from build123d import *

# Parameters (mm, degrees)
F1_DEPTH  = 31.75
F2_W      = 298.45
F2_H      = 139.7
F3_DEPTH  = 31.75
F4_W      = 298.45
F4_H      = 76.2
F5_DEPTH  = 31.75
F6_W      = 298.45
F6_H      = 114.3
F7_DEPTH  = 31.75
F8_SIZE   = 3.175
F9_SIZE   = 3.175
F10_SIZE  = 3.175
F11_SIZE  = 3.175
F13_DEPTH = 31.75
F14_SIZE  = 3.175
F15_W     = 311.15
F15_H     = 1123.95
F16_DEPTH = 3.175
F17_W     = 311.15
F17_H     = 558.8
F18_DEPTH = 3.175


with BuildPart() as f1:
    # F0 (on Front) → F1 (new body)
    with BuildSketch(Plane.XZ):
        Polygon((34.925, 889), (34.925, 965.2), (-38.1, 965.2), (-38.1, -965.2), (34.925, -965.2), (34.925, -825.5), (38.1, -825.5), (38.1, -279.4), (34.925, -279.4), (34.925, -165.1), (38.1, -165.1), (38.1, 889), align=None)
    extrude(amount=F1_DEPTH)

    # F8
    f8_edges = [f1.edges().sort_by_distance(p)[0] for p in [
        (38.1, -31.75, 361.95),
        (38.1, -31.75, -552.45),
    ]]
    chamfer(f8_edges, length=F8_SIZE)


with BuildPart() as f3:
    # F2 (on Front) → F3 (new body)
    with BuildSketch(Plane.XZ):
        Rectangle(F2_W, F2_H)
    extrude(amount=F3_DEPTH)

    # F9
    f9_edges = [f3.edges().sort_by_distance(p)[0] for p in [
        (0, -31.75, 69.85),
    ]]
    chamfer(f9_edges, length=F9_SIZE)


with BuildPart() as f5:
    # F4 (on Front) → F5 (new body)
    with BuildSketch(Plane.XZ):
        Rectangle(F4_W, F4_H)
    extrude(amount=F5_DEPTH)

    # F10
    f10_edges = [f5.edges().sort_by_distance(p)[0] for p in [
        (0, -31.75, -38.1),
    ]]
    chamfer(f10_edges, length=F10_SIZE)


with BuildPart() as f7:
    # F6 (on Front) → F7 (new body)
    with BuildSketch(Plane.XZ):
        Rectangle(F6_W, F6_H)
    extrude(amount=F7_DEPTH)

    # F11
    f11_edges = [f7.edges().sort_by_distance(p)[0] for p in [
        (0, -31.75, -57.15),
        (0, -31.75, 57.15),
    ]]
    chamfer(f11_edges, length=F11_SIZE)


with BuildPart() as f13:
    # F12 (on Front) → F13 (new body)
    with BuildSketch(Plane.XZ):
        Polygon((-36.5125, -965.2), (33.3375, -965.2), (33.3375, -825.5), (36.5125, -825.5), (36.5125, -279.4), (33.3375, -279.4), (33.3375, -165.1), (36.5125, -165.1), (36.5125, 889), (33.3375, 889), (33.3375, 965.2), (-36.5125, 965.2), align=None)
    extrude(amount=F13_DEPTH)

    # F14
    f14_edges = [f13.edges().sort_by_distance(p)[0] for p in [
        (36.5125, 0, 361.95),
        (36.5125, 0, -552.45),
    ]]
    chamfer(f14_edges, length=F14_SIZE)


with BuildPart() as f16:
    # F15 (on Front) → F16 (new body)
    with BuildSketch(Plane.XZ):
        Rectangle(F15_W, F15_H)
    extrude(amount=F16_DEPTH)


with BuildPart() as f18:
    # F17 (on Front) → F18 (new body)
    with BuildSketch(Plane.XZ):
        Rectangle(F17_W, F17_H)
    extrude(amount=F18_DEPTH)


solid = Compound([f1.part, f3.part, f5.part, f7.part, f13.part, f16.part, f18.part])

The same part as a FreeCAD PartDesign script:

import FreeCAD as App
import Part
import Sketcher
from FreeCAD import Vector
Q = App.Units.Quantity


def edges_at(feature, points):
    """Names of the edges that pass closest to the given points."""
    edges = feature.Shape.Edges
    near = lambda p: min(range(len(edges)), key=lambda i: edges[i].distToShape(Part.Vertex(*p))[0])
    return sorted({f"Edge{near(p) + 1}" for p in points})

doc = App.newDocument("Part")
body = doc.addObject("PartDesign::Body", "Body")

sketch1 = body.newObject("Sketcher::SketchObject", "Sketch")
sketch1.AttachmentSupport = (doc.getObject("XZ_Plane"), [""])
sketch1.MapMode = "FlatFace"
sketch1.addGeometry([
    Part.LineSegment(Vector(34.9, 889, 0), Vector(34.9, 965.2, 0)),
    Part.LineSegment(Vector(34.9, 965.2, 0), Vector(-38.1, 965.2, 0)),
    Part.LineSegment(Vector(-38.1, 965.2, 0), Vector(-38.1, -965.2, 0)),
    Part.LineSegment(Vector(-38.1, -965.2, 0), Vector(34.9, -965.2, 0)),
    Part.LineSegment(Vector(34.9, -965.2, 0), Vector(34.9, -825.5, 0)),
    Part.LineSegment(Vector(34.9, -825.5, 0), Vector(38.1, -825.5, 0)),
    Part.LineSegment(Vector(38.1, -825.5, 0), Vector(38.1, -279.4, 0)),
    Part.LineSegment(Vector(38.1, -279.4, 0), Vector(34.9, -279.4, 0)),
    Part.LineSegment(Vector(34.9, -279.4, 0), Vector(34.9, -165.1, 0)),
    Part.LineSegment(Vector(34.9, -165.1, 0), Vector(38.1, -165.1, 0)),
    Part.LineSegment(Vector(38.1, -165.1, 0), Vector(38.1, 889, 0)),
    Part.LineSegment(Vector(38.1, 889, 0), Vector(34.9, 889, 0)),
], False)
sketch1.addConstraint([
    Sketcher.Constraint("Coincident", 0, 2, 1, 1),
    Sketcher.Constraint("Coincident", 1, 2, 2, 1),
    Sketcher.Constraint("Coincident", 2, 2, 3, 1),
    Sketcher.Constraint("Coincident", 3, 2, 4, 1),
    Sketcher.Constraint("Coincident", 4, 2, 5, 1),
    Sketcher.Constraint("Coincident", 5, 2, 6, 1),
    Sketcher.Constraint("Coincident", 6, 2, 7, 1),
    Sketcher.Constraint("Coincident", 7, 2, 8, 1),
    Sketcher.Constraint("Coincident", 8, 2, 9, 1),
    Sketcher.Constraint("Coincident", 9, 2, 10, 1),
    Sketcher.Constraint("Coincident", 10, 2, 11, 1),
    Sketcher.Constraint("Coincident", 11, 2, 0, 1),
    Sketcher.Constraint("Vertical", 0),
    Sketcher.Constraint("Horizontal", 1),
    Sketcher.Constraint("Vertical", 2),
    Sketcher.Constraint("Horizontal", 3),
    Sketcher.Constraint("Vertical", 4),
    Sketcher.Constraint("Horizontal", 5),
    Sketcher.Constraint("Vertical", 6),
    Sketcher.Constraint("Horizontal", 7),
    Sketcher.Constraint("Vertical", 8),
    Sketcher.Constraint("Horizontal", 9),
    Sketcher.Constraint("Vertical", 10),
    Sketcher.Constraint("Horizontal", 11),
    Sketcher.Constraint("Symmetric", 0, 2, 3, 2, -1),
    Sketcher.Constraint("Vertical", 4, 2, 7, 2),
    Sketcher.Constraint("Vertical", 6, 2, 9, 2),
    Sketcher.Constraint("DistanceY", 0, 1, 0, 2, Q("3 in")),
    Sketcher.Constraint("DistanceY", 2, 2, 2, 1, Q("76 in")),
    Sketcher.Constraint("DistanceY", 4, 1, 4, 2, Q("5.5 in")),
    Sketcher.Constraint("DistanceY", 6, 1, 6, 2, Q("21.5 in")),
    Sketcher.Constraint("DistanceY", 8, 1, 8, 2, Q("4.5 in")),
    Sketcher.Constraint("DistanceX", 2, 2, 5, 2, Q("3 in")),
    Sketcher.Constraint("DistanceX", 1, 2, -1, 1, Q("1.5 in")),
    Sketcher.Constraint("DistanceX", 1, 2, 1, 1, Q("2.875 in")),
])
pad1 = body.newObject("PartDesign::Pad", "Pad")
pad1.Profile = sketch1
pad1.Length = Q("1.25 in")
doc.recompute()

chamfer = body.newObject("PartDesign::Chamfer", "Chamfer")
chamfer.Base = (pad1, edges_at(pad1, [(38.1, -31.75, 361.95), (38.1, -31.75, -552.45)]))
chamfer.Size = Q("0.125 in")
body2 = doc.addObject("PartDesign::Body", "Body001")

sketch2 = body2.newObject("Sketcher::SketchObject", "Sketch001")
sketch2.AttachmentSupport = (doc.getObject("XZ_Plane001"), [""])
sketch2.MapMode = "FlatFace"
sketch2.addGeometry([
    Part.LineSegment(Vector(-149, 70, 0), Vector(-149, -70, 0)),
    Part.LineSegment(Vector(-149, -70, 0), Vector(149, -70, 0)),
    Part.LineSegment(Vector(149, -70, 0), Vector(149, 70, 0)),
    Part.LineSegment(Vector(149, 70, 0), Vector(-149, 70, 0)),
], False)
sketch2.addConstraint([
    Sketcher.Constraint("Coincident", 0, 2, 1, 1),
    Sketcher.Constraint("Coincident", 1, 2, 2, 1),
    Sketcher.Constraint("Coincident", 2, 2, 3, 1),
    Sketcher.Constraint("Coincident", 3, 2, 0, 1),
    Sketcher.Constraint("Vertical", 0),
    Sketcher.Constraint("Horizontal", 1),
    Sketcher.Constraint("Vertical", 2),
    Sketcher.Constraint("Horizontal", 3),
    Sketcher.Constraint("Symmetric", 0, 2, 2, 2, -1, 1),
    Sketcher.Constraint("DistanceY", 0, 2, 0, 1, Q("5.5 in")),
    Sketcher.Constraint("DistanceX", 1, 1, 1, 2, Q("11.75 in")),
])
pad2 = body2.newObject("PartDesign::Pad", "Pad001")
pad2.Profile = sketch2
pad2.Length = Q("1.25 in")
doc.recompute()

chamfer2 = body2.newObject("PartDesign::Chamfer", "Chamfer001")
chamfer2.Base = (pad2, edges_at(pad2, [(0, -31.75, 69.85)]))
chamfer2.Size = Q("0.125 in")
body3 = doc.addObject("PartDesign::Body", "Body002")

sketch3 = body3.newObject("Sketcher::SketchObject", "Sketch002")
sketch3.AttachmentSupport = (doc.getObject("XZ_Plane002"), [""])
sketch3.MapMode = "FlatFace"
sketch3.addGeometry([
    Part.LineSegment(Vector(-149, 38, 0), Vector(-149, -38, 0)),
    Part.LineSegment(Vector(-149, -38, 0), Vector(149, -38, 0)),
    Part.LineSegment(Vector(149, -38, 0), Vector(149, 38, 0)),
    Part.LineSegment(Vector(149, 38, 0), Vector(-149, 38, 0)),
], False)
sketch3.addConstraint([
    Sketcher.Constraint("Coincident", 0, 2, 1, 1),
    Sketcher.Constraint("Coincident", 1, 2, 2, 1),
    Sketcher.Constraint("Coincident", 2, 2, 3, 1),
    Sketcher.Constraint("Coincident", 3, 2, 0, 1),
    Sketcher.Constraint("Vertical", 0),
    Sketcher.Constraint("Horizontal", 1),
    Sketcher.Constraint("Vertical", 2),
    Sketcher.Constraint("Horizontal", 3),
    Sketcher.Constraint("Symmetric", 0, 2, 2, 2, -1, 1),
    Sketcher.Constraint("DistanceY", 0, 2, 0, 1, Q("3 in")),
    Sketcher.Constraint("DistanceX", 1, 1, 1, 2, Q("11.75 in")),
])
pad3 = body3.newObject("PartDesign::Pad", "Pad002")
pad3.Profile = sketch3
pad3.Length = Q("1.25 in")
doc.recompute()

chamfer3 = body3.newObject("PartDesign::Chamfer", "Chamfer002")
chamfer3.Base = (pad3, edges_at(pad3, [(0, -31.75, -38.1)]))
chamfer3.Size = Q("0.125 in")
body4 = doc.addObject("PartDesign::Body", "Body003")

sketch4 = body4.newObject("Sketcher::SketchObject", "Sketch003")
sketch4.AttachmentSupport = (doc.getObject("XZ_Plane003"), [""])
sketch4.MapMode = "FlatFace"
sketch4.addGeometry([
    Part.LineSegment(Vector(-149, 57, 0), Vector(-149, -57, 0)),
    Part.LineSegment(Vector(-149, -57, 0), Vector(149, -57, 0)),
    Part.LineSegment(Vector(149, -57, 0), Vector(149, 57, 0)),
    Part.LineSegment(Vector(149, 57, 0), Vector(-149, 57, 0)),
], False)
sketch4.addConstraint([
    Sketcher.Constraint("Coincident", 0, 2, 1, 1),
    Sketcher.Constraint("Coincident", 1, 2, 2, 1),
    Sketcher.Constraint("Coincident", 2, 2, 3, 1),
    Sketcher.Constraint("Coincident", 3, 2, 0, 1),
    Sketcher.Constraint("Vertical", 0),
    Sketcher.Constraint("Horizontal", 1),
    Sketcher.Constraint("Vertical", 2),
    Sketcher.Constraint("Horizontal", 3),
    Sketcher.Constraint("Symmetric", 0, 2, 2, 2, -1, 1),
    Sketcher.Constraint("DistanceY", 0, 2, 0, 1, Q("4.5 in")),
    Sketcher.Constraint("DistanceX", 1, 1, 1, 2, Q("11.75 in")),
])
pad4 = body4.newObject("PartDesign::Pad", "Pad003")
pad4.Profile = sketch4
pad4.Length = Q("1.25 in")
doc.recompute()

chamfer4 = body4.newObject("PartDesign::Chamfer", "Chamfer003")
chamfer4.Base = (pad4, edges_at(pad4, [(0, -31.75, -57.15), (0, -31.75, 57.15)]))
chamfer4.Size = Q("0.125 in")
body5 = doc.addObject("PartDesign::Body", "Body004")

sketch5 = body5.newObject("Sketcher::SketchObject", "Sketch004")
sketch5.AttachmentSupport = (doc.getObject("XZ_Plane004"), [""])
sketch5.MapMode = "FlatFace"
sketch5.addGeometry([
    Part.LineSegment(Vector(-36.5, -965.2, 0), Vector(33.3, -965.2, 0)),
    Part.LineSegment(Vector(33.3, -965.2, 0), Vector(33.3, -825.5, 0)),
    Part.LineSegment(Vector(33.3, -825.5, 0), Vector(36.5, -825.5, 0)),
    Part.LineSegment(Vector(36.5, -825.5, 0), Vector(36.5, -279.4, 0)),
    Part.LineSegment(Vector(36.5, -279.4, 0), Vector(33.3, -279.4, 0)),
    Part.LineSegment(Vector(33.3, -279.4, 0), Vector(33.3, -165.1, 0)),
    Part.LineSegment(Vector(33.3, -165.1, 0), Vector(36.5, -165.1, 0)),
    Part.LineSegment(Vector(36.5, -165.1, 0), Vector(36.5, 889, 0)),
    Part.LineSegment(Vector(36.5, 889, 0), Vector(33.3, 889, 0)),
    Part.LineSegment(Vector(33.3, 889, 0), Vector(33.3, 965.2, 0)),
    Part.LineSegment(Vector(33.3, 965.2, 0), Vector(-36.5, 965.2, 0)),
    Part.LineSegment(Vector(-36.5, 965.2, 0), Vector(-36.5, -965.2, 0)),
], False)
sketch5.addConstraint([
    Sketcher.Constraint("Coincident", 0, 2, 1, 1),
    Sketcher.Constraint("Coincident", 1, 2, 2, 1),
    Sketcher.Constraint("Coincident", 2, 2, 3, 1),
    Sketcher.Constraint("Coincident", 3, 2, 4, 1),
    Sketcher.Constraint("Coincident", 4, 2, 5, 1),
    Sketcher.Constraint("Coincident", 5, 2, 6, 1),
    Sketcher.Constraint("Coincident", 6, 2, 7, 1),
    Sketcher.Constraint("Coincident", 7, 2, 8, 1),
    Sketcher.Constraint("Coincident", 8, 2, 9, 1),
    Sketcher.Constraint("Coincident", 9, 2, 10, 1),
    Sketcher.Constraint("Coincident", 10, 2, 11, 1),
    Sketcher.Constraint("Coincident", 11, 2, 0, 1),
    Sketcher.Constraint("Horizontal", 0),
    Sketcher.Constraint("Vertical", 1),
    Sketcher.Constraint("Horizontal", 2),
    Sketcher.Constraint("Vertical", 3),
    Sketcher.Constraint("Horizontal", 4),
    Sketcher.Constraint("Vertical", 5),
    Sketcher.Constraint("Horizontal", 6),
    Sketcher.Constraint("Vertical", 7),
    Sketcher.Constraint("Horizontal", 8),
    Sketcher.Constraint("Vertical", 9),
    Sketcher.Constraint("Horizontal", 10),
    Sketcher.Constraint("Vertical", 11),
    Sketcher.Constraint("Symmetric", 0, 2, 9, 2, -1),
    Sketcher.Constraint("Vertical", 1, 2, 4, 2),
    Sketcher.Constraint("Vertical", 3, 2, 6, 2),
    Sketcher.Constraint("DistanceY", 9, 1, 9, 2, Q("3 in")),
    Sketcher.Constraint("DistanceY", 11, 2, 11, 1, Q("76 in")),
    Sketcher.Constraint("DistanceY", 1, 1, 1, 2, Q("5.5 in")),
    Sketcher.Constraint("DistanceY", 3, 1, 3, 2, Q("21.5 in")),
    Sketcher.Constraint("DistanceY", 5, 1, 5, 2, Q("4.5 in")),
    Sketcher.Constraint("DistanceX", 0, 1, 0, 2, Q("2.75 in")),
    Sketcher.Constraint("DistanceX", 2, 1, 2, 2, Q("0.125 in")),
    Sketcher.Constraint("DistanceX", -1, 1, 0, 2, Q("1.3125 in")),
])
pad5 = body5.newObject("PartDesign::Pad", "Pad004")
pad5.Profile = sketch5
pad5.Length = Q("1.25 in")
doc.recompute()

chamfer5 = body5.newObject("PartDesign::Chamfer", "Chamfer004")
chamfer5.Base = (pad5, edges_at(pad5, [(36.513, 0, 361.95), (36.513, 0, -552.45)]))
chamfer5.Size = Q("0.125 in")
body6 = doc.addObject("PartDesign::Body", "Body005")

sketch6 = body6.newObject("Sketcher::SketchObject", "Sketch005")
sketch6.AttachmentSupport = (doc.getObject("XZ_Plane005"), [""])
sketch6.MapMode = "FlatFace"
sketch6.addGeometry([
    Part.LineSegment(Vector(-156, 562, 0), Vector(-156, -562, 0)),
    Part.LineSegment(Vector(-156, -562, 0), Vector(156, -562, 0)),
    Part.LineSegment(Vector(156, -562, 0), Vector(156, 562, 0)),
    Part.LineSegment(Vector(156, 562, 0), Vector(-156, 562, 0)),
], False)
sketch6.addConstraint([
    Sketcher.Constraint("Coincident", 0, 2, 1, 1),
    Sketcher.Constraint("Coincident", 1, 2, 2, 1),
    Sketcher.Constraint("Coincident", 2, 2, 3, 1),
    Sketcher.Constraint("Coincident", 3, 2, 0, 1),
    Sketcher.Constraint("Vertical", 0),
    Sketcher.Constraint("Horizontal", 1),
    Sketcher.Constraint("Vertical", 2),
    Sketcher.Constraint("Horizontal", 3),
    Sketcher.Constraint("Symmetric", 0, 2, 2, 2, -1, 1),
    Sketcher.Constraint("DistanceX", 1, 1, 1, 2, Q("12.25 in")),
    Sketcher.Constraint("DistanceY", 0, 2, 0, 1, Q("44.25 in")),
])
pad6 = body6.newObject("PartDesign::Pad", "Pad005")
pad6.Profile = sketch6
pad6.Length = Q("0.125 in")
body7 = doc.addObject("PartDesign::Body", "Body006")

sketch7 = body7.newObject("Sketcher::SketchObject", "Sketch006")
sketch7.AttachmentSupport = (doc.getObject("XZ_Plane006"), [""])
sketch7.MapMode = "FlatFace"
sketch7.addGeometry([
    Part.LineSegment(Vector(-156, 279, 0), Vector(-156, -279, 0)),
    Part.LineSegment(Vector(-156, -279, 0), Vector(156, -279, 0)),
    Part.LineSegment(Vector(156, -279, 0), Vector(156, 279, 0)),
    Part.LineSegment(Vector(156, 279, 0), Vector(-156, 279, 0)),
], False)
sketch7.addConstraint([
    Sketcher.Constraint("Coincident", 0, 2, 1, 1),
    Sketcher.Constraint("Coincident", 1, 2, 2, 1),
    Sketcher.Constraint("Coincident", 2, 2, 3, 1),
    Sketcher.Constraint("Coincident", 3, 2, 0, 1),
    Sketcher.Constraint("Vertical", 0),
    Sketcher.Constraint("Horizontal", 1),
    Sketcher.Constraint("Vertical", 2),
    Sketcher.Constraint("Horizontal", 3),
    Sketcher.Constraint("Symmetric", 0, 2, 2, 2, -1, 1),
    Sketcher.Constraint("DistanceY", 0, 2, 0, 1, Q("22 in")),
    Sketcher.Constraint("DistanceX", 1, 1, 1, 2, Q("12.25 in")),
])
pad7 = body7.newObject("PartDesign::Pad", "Pad006")
pad7.Profile = sketch7
pad7.Length = Q("0.125 in")

doc.recompute()
